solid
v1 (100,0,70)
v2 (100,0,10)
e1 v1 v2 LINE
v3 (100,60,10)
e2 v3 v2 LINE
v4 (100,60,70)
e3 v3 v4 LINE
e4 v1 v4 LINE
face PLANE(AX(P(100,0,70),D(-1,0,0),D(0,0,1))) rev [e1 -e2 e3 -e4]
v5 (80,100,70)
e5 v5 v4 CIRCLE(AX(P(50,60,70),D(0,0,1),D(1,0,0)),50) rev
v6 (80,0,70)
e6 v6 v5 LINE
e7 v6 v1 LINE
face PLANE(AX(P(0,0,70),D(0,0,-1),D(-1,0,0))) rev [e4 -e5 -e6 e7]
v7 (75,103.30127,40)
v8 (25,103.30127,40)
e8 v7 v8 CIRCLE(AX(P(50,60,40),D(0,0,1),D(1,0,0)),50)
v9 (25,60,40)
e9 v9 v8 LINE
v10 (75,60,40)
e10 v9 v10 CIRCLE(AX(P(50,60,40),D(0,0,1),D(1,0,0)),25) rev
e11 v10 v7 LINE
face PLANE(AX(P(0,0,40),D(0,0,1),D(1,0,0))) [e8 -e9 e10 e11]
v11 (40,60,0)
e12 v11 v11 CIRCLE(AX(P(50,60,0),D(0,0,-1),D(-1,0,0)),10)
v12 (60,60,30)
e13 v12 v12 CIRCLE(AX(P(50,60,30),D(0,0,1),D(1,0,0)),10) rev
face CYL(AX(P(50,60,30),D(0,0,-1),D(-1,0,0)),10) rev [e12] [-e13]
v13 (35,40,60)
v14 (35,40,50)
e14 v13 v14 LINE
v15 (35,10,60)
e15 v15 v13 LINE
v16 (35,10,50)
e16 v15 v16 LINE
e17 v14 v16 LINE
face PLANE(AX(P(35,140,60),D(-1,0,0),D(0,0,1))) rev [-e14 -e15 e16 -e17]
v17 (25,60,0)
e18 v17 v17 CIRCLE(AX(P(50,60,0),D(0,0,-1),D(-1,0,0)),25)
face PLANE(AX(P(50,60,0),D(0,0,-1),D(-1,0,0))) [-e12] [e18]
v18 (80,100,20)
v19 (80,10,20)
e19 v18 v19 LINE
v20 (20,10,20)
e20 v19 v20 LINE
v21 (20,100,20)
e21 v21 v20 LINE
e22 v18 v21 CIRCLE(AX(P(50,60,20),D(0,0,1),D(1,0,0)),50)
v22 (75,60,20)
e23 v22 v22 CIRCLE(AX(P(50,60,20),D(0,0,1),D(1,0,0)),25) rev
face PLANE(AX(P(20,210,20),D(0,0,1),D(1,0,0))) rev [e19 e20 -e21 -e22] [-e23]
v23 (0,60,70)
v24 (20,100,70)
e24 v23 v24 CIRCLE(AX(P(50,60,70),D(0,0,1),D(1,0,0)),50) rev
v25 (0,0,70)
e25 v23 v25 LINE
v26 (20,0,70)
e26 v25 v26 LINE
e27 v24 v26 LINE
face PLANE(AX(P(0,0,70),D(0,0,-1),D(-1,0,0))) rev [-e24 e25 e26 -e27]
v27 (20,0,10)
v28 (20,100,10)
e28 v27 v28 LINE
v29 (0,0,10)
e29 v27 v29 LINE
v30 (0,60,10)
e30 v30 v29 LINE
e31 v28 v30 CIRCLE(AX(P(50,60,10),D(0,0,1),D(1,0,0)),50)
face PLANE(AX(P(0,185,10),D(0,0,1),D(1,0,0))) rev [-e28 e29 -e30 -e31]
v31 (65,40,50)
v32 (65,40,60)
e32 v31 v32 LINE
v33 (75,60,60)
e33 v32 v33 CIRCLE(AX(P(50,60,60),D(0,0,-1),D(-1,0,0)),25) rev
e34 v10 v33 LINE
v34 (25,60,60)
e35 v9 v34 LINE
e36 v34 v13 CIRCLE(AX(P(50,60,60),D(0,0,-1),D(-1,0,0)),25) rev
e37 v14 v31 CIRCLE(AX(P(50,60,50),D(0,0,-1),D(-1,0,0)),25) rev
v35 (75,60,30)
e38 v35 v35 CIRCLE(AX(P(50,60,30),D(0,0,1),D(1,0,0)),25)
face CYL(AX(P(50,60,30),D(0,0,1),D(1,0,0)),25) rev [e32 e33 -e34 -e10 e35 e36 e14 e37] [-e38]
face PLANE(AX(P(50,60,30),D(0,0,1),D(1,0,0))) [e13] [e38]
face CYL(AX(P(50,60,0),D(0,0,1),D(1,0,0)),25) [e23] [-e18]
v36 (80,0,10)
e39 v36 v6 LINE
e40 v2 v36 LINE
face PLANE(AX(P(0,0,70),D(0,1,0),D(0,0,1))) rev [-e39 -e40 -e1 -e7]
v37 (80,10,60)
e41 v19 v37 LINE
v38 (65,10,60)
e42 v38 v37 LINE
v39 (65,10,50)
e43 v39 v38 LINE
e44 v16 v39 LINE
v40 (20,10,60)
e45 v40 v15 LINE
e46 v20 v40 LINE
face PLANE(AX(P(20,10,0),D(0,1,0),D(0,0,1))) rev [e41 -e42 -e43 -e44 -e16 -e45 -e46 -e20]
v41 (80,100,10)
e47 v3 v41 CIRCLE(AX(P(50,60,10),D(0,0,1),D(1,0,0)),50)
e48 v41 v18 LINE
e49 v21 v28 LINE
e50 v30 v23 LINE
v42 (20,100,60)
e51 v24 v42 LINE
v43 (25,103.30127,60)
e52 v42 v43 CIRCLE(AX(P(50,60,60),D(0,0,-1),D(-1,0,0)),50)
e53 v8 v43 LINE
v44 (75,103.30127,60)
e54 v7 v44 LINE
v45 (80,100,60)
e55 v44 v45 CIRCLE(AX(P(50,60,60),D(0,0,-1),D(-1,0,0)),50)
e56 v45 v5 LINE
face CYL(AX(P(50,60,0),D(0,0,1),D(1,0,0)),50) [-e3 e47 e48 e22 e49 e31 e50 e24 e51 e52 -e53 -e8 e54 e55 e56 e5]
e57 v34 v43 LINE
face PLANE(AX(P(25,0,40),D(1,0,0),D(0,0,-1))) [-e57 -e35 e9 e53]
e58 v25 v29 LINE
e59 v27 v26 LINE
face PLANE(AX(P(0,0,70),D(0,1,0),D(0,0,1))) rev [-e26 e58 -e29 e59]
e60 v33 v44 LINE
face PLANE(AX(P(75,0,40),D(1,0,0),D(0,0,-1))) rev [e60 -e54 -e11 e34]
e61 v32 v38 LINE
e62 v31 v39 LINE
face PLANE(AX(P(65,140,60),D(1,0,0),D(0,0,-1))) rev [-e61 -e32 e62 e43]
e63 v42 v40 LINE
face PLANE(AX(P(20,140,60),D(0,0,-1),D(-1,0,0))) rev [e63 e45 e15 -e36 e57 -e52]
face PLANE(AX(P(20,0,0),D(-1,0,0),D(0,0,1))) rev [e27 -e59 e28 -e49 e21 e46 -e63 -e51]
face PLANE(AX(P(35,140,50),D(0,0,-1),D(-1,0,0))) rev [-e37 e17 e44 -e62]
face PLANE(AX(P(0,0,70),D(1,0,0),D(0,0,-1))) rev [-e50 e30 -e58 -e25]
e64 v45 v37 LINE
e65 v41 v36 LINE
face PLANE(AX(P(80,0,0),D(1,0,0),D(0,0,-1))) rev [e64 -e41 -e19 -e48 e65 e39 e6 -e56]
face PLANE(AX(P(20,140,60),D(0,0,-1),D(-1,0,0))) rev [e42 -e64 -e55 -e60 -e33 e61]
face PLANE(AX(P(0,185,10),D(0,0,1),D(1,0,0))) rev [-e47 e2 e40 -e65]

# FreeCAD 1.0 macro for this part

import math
import FreeCAD as App
import Part
import Sketcher
from FreeCAD import Vector
Q = App.Units.Quantity

doc = App.newDocument("Part")
body = doc.addObject("PartDesign::Body", "Body")

sketch1 = body.newObject("Sketcher::SketchObject", "Sketch")
sketch1.AttachmentSupport = (doc.getObject("XY_Plane"), [""])
sketch1.MapMode = "FlatFace"
sketch1.addGeometry(Part.LineSegment(Vector(0, 110, 0), Vector(0, 0, 0)), False)
sketch1.addGeometry(Part.LineSegment(Vector(0, 0, 0), Vector(100, 0, 0)), False)
sketch1.addGeometry(Part.LineSegment(Vector(100, 0, 0), Vector(100, 110, 0)), False)
sketch1.addGeometry(Part.LineSegment(Vector(100, 110, 0), Vector(0, 110, 0)), False)
sketch1.addConstraint(Sketcher.Constraint("Coincident", 0, 2, 1, 1))
sketch1.addConstraint(Sketcher.Constraint("Coincident", 1, 2, 2, 1))
sketch1.addConstraint(Sketcher.Constraint("Coincident", 2, 2, 3, 1))
sketch1.addConstraint(Sketcher.Constraint("Coincident", 3, 2, 0, 1))
sketch1.addConstraint(Sketcher.Constraint("Vertical", 0))
sketch1.addConstraint(Sketcher.Constraint("Horizontal", 1))
sketch1.addConstraint(Sketcher.Constraint("Vertical", 2))
sketch1.addConstraint(Sketcher.Constraint("Horizontal", 3))
sketch1.addConstraint(Sketcher.Constraint("Coincident", 0, 2, -1, 1))
sketch1.addConstraint(Sketcher.Constraint("DistanceX", 1, 1, 1, 2, Q("100 mm")))
sketch1.addConstraint(Sketcher.Constraint("DistanceY", 0, 2, 0, 1, Q("110 mm")))
pad1 = body.newObject("PartDesign::Pad", "Pad")
pad1.Profile = sketch1
pad1.Length = 70

sketch2 = body.newObject("Sketcher::SketchObject", "Sketch001")
sketch2.AttachmentSupport = (doc.getObject("XY_Plane"), [""])
sketch2.MapMode = "FlatFace"
sketch2.AttachmentOffset = App.Placement(Vector(0, 0, 70), App.Rotation())
sketch2.addGeometry(Part.LineSegment(Vector(20, 10, 0), Vector(20, 0, 0)), False)
sketch2.addGeometry(Part.LineSegment(Vector(20, 0, 0), Vector(80, 0, 0)), False)
sketch2.addGeometry(Part.LineSegment(Vector(80, 0, 0), Vector(80, 10, 0)), False)
sketch2.addGeometry(Part.LineSegment(Vector(80, 10, 0), Vector(20, 10, 0)), False)
sketch2.addConstraint(Sketcher.Constraint("Coincident", 0, 2, 1, 1))
sketch2.addConstraint(Sketcher.Constraint("Coincident", 1, 2, 2, 1))
sketch2.addConstraint(Sketcher.Constraint("Coincident", 2, 2, 3, 1))
sketch2.addConstraint(Sketcher.Constraint("Coincident", 3, 2, 0, 1))
sketch2.addConstraint(Sketcher.Constraint("Vertical", 0))
sketch2.addConstraint(Sketcher.Constraint("Horizontal", 1))
sketch2.addConstraint(Sketcher.Constraint("Vertical", 2))
sketch2.addConstraint(Sketcher.Constraint("Horizontal", 3))
sketch2.addConstraint(Sketcher.Constraint("PointOnObject", 0, 2, -1))
sketch2.addConstraint(Sketcher.Constraint("DistanceX", 1, 1, 1, 2, Q("60 mm")))
sketch2.addConstraint(Sketcher.Constraint("DistanceY", 0, 2, 0, 1, Q("10 mm")))
sketch2.addConstraint(Sketcher.Constraint("DistanceX", -1, 1, 0, 2, Q("20 mm")))
pocket1 = body.newObject("PartDesign::Pocket", "Pocket")
pocket1.Profile = sketch2
pocket1.Length = 70

sketch3 = body.newObject("Sketcher::SketchObject", "Sketch002")
sketch3.AttachmentSupport = (doc.getObject("XY_Plane"), [""])
sketch3.MapMode = "FlatFace"
sketch3.AttachmentOffset = App.Placement(Vector(0, 0, 70), App.Rotation())
sketch3.addGeometry(Part.LineSegment(Vector(0, 110, 0), Vector(0, 60, 0)), False)
sketch3.addGeometry(Part.ArcOfCircle(Part.Circle(Vector(50, 60, 0), Vector(0, 0, 1), 50), math.radians(90), math.radians(180)), False)
sketch3.addGeometry(Part.LineSegment(Vector(50, 110, 0), Vector(0, 110, 0)), False)
sketch3.addGeometry(Part.LineSegment(Vector(100, 110, 0), Vector(50, 110, 0)), False)
sketch3.addGeometry(Part.ArcOfCircle(Part.Circle(Vector(50, 60, 0), Vector(0, 0, 1), 50), math.radians(0), math.radians(90)), False)
sketch3.addGeometry(Part.LineSegment(Vector(100, 60, 0), Vector(100, 110, 0)), False)
sketch3.addConstraint(Sketcher.Constraint("Tangent", 0, 2, 1, 2))
sketch3.addConstraint(Sketcher.Constraint("Tangent", 1, 1, 2, 1))
sketch3.addConstraint(Sketcher.Constraint("Coincident", 2, 2, 0, 1))
sketch3.addConstraint(Sketcher.Constraint("Tangent", 3, 2, 4, 2))
sketch3.addConstraint(Sketcher.Constraint("Tangent", 4, 1, 5, 1))
sketch3.addConstraint(Sketcher.Constraint("Coincident", 5, 2, 3, 1))
sketch3.addConstraint(Sketcher.Constraint("Vertical", 0))
sketch3.addConstraint(Sketcher.Constraint("Horizontal", 2))
sketch3.addConstraint(Sketcher.Constraint("Horizontal", 3))
sketch3.addConstraint(Sketcher.Constraint("Vertical", 5))
sketch3.addConstraint(Sketcher.Constraint("Coincident", 4, 3, 1, 3))
sketch3.addConstraint(Sketcher.Constraint("Equal", 1, 4))
sketch3.addConstraint(Sketcher.Constraint("PointOnObject", 0, 2, -2))
sketch3.addConstraint(Sketcher.Constraint("Radius", 1, Q("50 mm")))
sketch3.addConstraint(Sketcher.Constraint("DistanceY", -1, 1, 1, 3, Q("60 mm")))
pocket2 = body.newObject("PartDesign::Pocket", "Pocket001")
pocket2.Profile = sketch3
pocket2.Length = 70

sketch4 = body.newObject("Sketcher::SketchObject", "Sketch003")
sketch4.AttachmentSupport = (doc.getObject("XY_Plane"), [""])
sketch4.MapMode = "FlatFace"
sketch4.addGeometry(Part.Circle(Vector(50, 60, 0), Vector(0, 0, 1), 10), False)
sketch4.addConstraint(Sketcher.Constraint("Diameter", 0, Q("20 mm")))
sketch4.addConstraint(Sketcher.Constraint("DistanceX", -1, 1, 0, 3, Q("50 mm")))
sketch4.addConstraint(Sketcher.Constraint("DistanceY", -1, 1, 0, 3, Q("60 mm")))
pocket3 = body.newObject("PartDesign::Pocket", "Pocket002")
pocket3.Profile = sketch4
pocket3.Length = 30
pocket3.Reversed = True

sketch5 = body.newObject("Sketcher::SketchObject", "Sketch004")
sketch5.AttachmentSupport = (doc.getObject("XZ_Plane"), [""])
sketch5.MapMode = "FlatFace"
sketch5.addGeometry(Part.LineSegment(Vector(0, 10, 0), Vector(0, 0, 0)), False)
sketch5.addGeometry(Part.LineSegment(Vector(0, 0, 0), Vector(100, 0, 0)), False)
sketch5.addGeometry(Part.LineSegment(Vector(100, 0, 0), Vector(100, 10, 0)), False)
sketch5.addGeometry(Part.LineSegment(Vector(100, 10, 0), Vector(0, 10, 0)), False)
sketch5.addConstraint(Sketcher.Constraint("Coincident", 0, 2, 1, 1))
sketch5.addConstraint(Sketcher.Constraint("Coincident", 1, 2, 2, 1))
sketch5.addConstraint(Sketcher.Constraint("Coincident", 2, 2, 3, 1))
sketch5.addConstraint(Sketcher.Constraint("Coincident", 3, 2, 0, 1))
sketch5.addConstraint(Sketcher.Constraint("Vertical", 0))
sketch5.addConstraint(Sketcher.Constraint("Horizontal", 1))
sketch5.addConstraint(Sketcher.Constraint("Vertical", 2))
sketch5.addConstraint(Sketcher.Constraint("Horizontal", 3))
sketch5.addConstraint(Sketcher.Constraint("Coincident", 0, 2, -1, 1))
sketch5.addConstraint(Sketcher.Constraint("DistanceX", 1, 1, 1, 2, Q("100 mm")))
sketch5.addConstraint(Sketcher.Constraint("DistanceY", 0, 2, 0, 1, Q("10 mm")))
pocket4 = body.newObject("PartDesign::Pocket", "Pocket003")
pocket4.Profile = sketch5
pocket4.Length = 185

sketch6 = body.newObject("Sketcher::SketchObject", "Sketch005")
sketch6.AttachmentSupport = (doc.getObject("XZ_Plane"), [""])
sketch6.MapMode = "FlatFace"
sketch6.AttachmentOffset = App.Placement(Vector(0, 0, -10), App.Rotation())
sketch6.addGeometry(Part.LineSegment(Vector(80, 10, 0), Vector(80, 20, 0)), False)
sketch6.addGeometry(Part.LineSegment(Vector(80, 20, 0), Vector(20, 20, 0)), False)
sketch6.addGeometry(Part.LineSegment(Vector(20, 20, 0), Vector(20, 10, 0)), False)
sketch6.addGeometry(Part.LineSegment(Vector(20, 10, 0), Vector(80, 10, 0)), False)
sketch6.addConstraint(Sketcher.Constraint("Coincident", 0, 2, 1, 1))
sketch6.addConstraint(Sketcher.Constraint("Coincident", 1, 2, 2, 1))
sketch6.addConstraint(Sketcher.Constraint("Coincident", 2, 2, 3, 1))
sketch6.addConstraint(Sketcher.Constraint("Coincident", 3, 2, 0, 1))
sketch6.addConstraint(Sketcher.Constraint("Vertical", 0))
sketch6.addConstraint(Sketcher.Constraint("Horizontal", 1))
sketch6.addConstraint(Sketcher.Constraint("Vertical", 2))
sketch6.addConstraint(Sketcher.Constraint("Horizontal", 3))
sketch6.addConstraint(Sketcher.Constraint("DistanceX", 1, 2, 1, 1, Q("60 mm")))
sketch6.addConstraint(Sketcher.Constraint("DistanceY", 0, 1, 0, 2, Q("10 mm")))
sketch6.addConstraint(Sketcher.Constraint("DistanceX", -1, 1, 0, 2, Q("80 mm")))
sketch6.addConstraint(Sketcher.Constraint("DistanceY", -1, 1, 0, 2, Q("20 mm")))
pocket5 = body.newObject("PartDesign::Pocket", "Pocket004")
pocket5.Profile = sketch6
pocket5.Length = 200

sketch7 = body.newObject("Sketcher::SketchObject", "Sketch006")
sketch7.AttachmentSupport = (doc.getObject("XY_Plane"), [""])
sketch7.MapMode = "FlatFace"
sketch7.AttachmentOffset = App.Placement(Vector(0, 0, 20), App.Rotation())
sketch7.addGeometry(Part.Circle(Vector(50, 60, 0), Vector(0, 0, 1), 25), False)
sketch7.addGeometry(Part.Circle(Vector(50, 60, 0), Vector(0, 0, 1), 10), False)
sketch7.addConstraint(Sketcher.Constraint("Coincident", 1, 3, 0, 3))
sketch7.addConstraint(Sketcher.Constraint("Diameter", 0, Q("50 mm")))
sketch7.addConstraint(Sketcher.Constraint("Diameter", 1, Q("20 mm")))
sketch7.addConstraint(Sketcher.Constraint("DistanceX", -1, 1, 0, 3, Q("50 mm")))
sketch7.addConstraint(Sketcher.Constraint("DistanceY", -1, 1, 0, 3, Q("60 mm")))
pad2 = body.newObject("PartDesign::Pad", "Pad001")
pad2.Profile = sketch7
pad2.Length = 20
pad2.Reversed = True

sketch8 = body.newObject("Sketcher::SketchObject", "Sketch007")
sketch8.AttachmentSupport = (doc.getObject("XY_Plane"), [""])
sketch8.MapMode = "FlatFace"
sketch8.AttachmentOffset = App.Placement(Vector(0, 0, 70), App.Rotation())
sketch8.addGeometry(Part.Circle(Vector(50, 60, 0), Vector(0, 0, 1), 25), False)
sketch8.addConstraint(Sketcher.Constraint("Diameter", 0, Q("50 mm")))
sketch8.addConstraint(Sketcher.Constraint("DistanceX", -1, 1, 0, 3, Q("50 mm")))
sketch8.addConstraint(Sketcher.Constraint("DistanceY", -1, 1, 0, 3, Q("60 mm")))
pocket6 = body.newObject("PartDesign::Pocket", "Pocket005")
pocket6.Profile = sketch8
pocket6.Length = 40

sketch9 = body.newObject("Sketcher::SketchObject", "Sketch008")
sketch9.AttachmentSupport = (doc.getObject("XY_Plane"), [""])
sketch9.MapMode = "FlatFace"
sketch9.AttachmentOffset = App.Placement(Vector(0, 0, 70), App.Rotation())
sketch9.addGeometry(Part.LineSegment(Vector(25, 103, 0), Vector(25, 60, 0)), False)
sketch9.addGeometry(Part.ArcOfCircle(Part.Circle(Vector(50, 60, 0), Vector(0, 0, 1), 25), math.radians(0), math.radians(180)), False)
sketch9.addGeometry(Part.LineSegment(Vector(75, 60, 0), Vector(75, 103, 0)), False)
sketch9.addGeometry(Part.ArcOfCircle(Part.Circle(Vector(50, 60, 0), Vector(0, 0, 1), 50), math.radians(60), math.radians(120)), False)
sketch9.addConstraint(Sketcher.Constraint("Tangent", 0, 2, 1, 2))
sketch9.addConstraint(Sketcher.Constraint("Tangent", 1, 1, 2, 1))
sketch9.addConstraint(Sketcher.Constraint("Coincident", 2, 2, 3, 1))
sketch9.addConstraint(Sketcher.Constraint("Coincident", 3, 2, 0, 1))
sketch9.addConstraint(Sketcher.Constraint("Vertical", 0))
sketch9.addConstraint(Sketcher.Constraint("Vertical", 2))
sketch9.addConstraint(Sketcher.Constraint("Coincident", 3, 3, 1, 3))
sketch9.addConstraint(Sketcher.Constraint("Radius", 1, Q("25 mm")))
sketch9.addConstraint(Sketcher.Constraint("Radius", 3, Q("50 mm")))
sketch9.addConstraint(Sketcher.Constraint("DistanceX", -1, 1, 1, 3, Q("50 mm")))
sketch9.addConstraint(Sketcher.Constraint("DistanceY", -1, 1, 1, 3, Q("60 mm")))
pocket7 = body.newObject("PartDesign::Pocket", "Pocket006")
pocket7.Profile = sketch9
pocket7.Length = 30

sketch10 = body.newObject("Sketcher::SketchObject", "Sketch009")
sketch10.AttachmentSupport = (doc.getObject("XZ_Plane"), [""])
sketch10.MapMode = "FlatFace"
sketch10.AttachmentOffset = App.Placement(Vector(0, 0, -10), App.Rotation())
sketch10.addGeometry(Part.LineSegment(Vector(80, 60, 0), Vector(80, 70, 0)), False)
sketch10.addGeometry(Part.LineSegment(Vector(80, 70, 0), Vector(20, 70, 0)), False)
sketch10.addGeometry(Part.LineSegment(Vector(20, 70, 0), Vector(20, 60, 0)), False)
sketch10.addGeometry(Part.LineSegment(Vector(20, 60, 0), Vector(80, 60, 0)), False)
sketch10.addConstraint(Sketcher.Constraint("Coincident", 0, 2, 1, 1))
sketch10.addConstraint(Sketcher.Constraint("Coincident", 1, 2, 2, 1))
sketch10.addConstraint(Sketcher.Constraint("Coincident", 2, 2, 3, 1))
sketch10.addConstraint(Sketcher.Constraint("Coincident", 3, 2, 0, 1))
sketch10.addConstraint(Sketcher.Constraint("Vertical", 0))
sketch10.addConstraint(Sketcher.Constraint("Horizontal", 1))
sketch10.addConstraint(Sketcher.Constraint("Vertical", 2))
sketch10.addConstraint(Sketcher.Constraint("Horizontal", 3))
sketch10.addConstraint(Sketcher.Constraint("DistanceX", 1, 2, 1, 1, Q("60 mm")))
sketch10.addConstraint(Sketcher.Constraint("DistanceY", 0, 1, 0, 2, Q("10 mm")))
sketch10.addConstraint(Sketcher.Constraint("DistanceX", -1, 1, 0, 2, Q("80 mm")))
sketch10.addConstraint(Sketcher.Constraint("DistanceY", -1, 1, 0, 2, Q("70 mm")))
pocket8 = body.newObject("PartDesign::Pocket", "Pocket007")
pocket8.Profile = sketch10
pocket8.Length = 130

sketch11 = body.newObject("Sketcher::SketchObject", "Sketch010")
sketch11.AttachmentSupport = (doc.getObject("XZ_Plane"), [""])
sketch11.MapMode = "FlatFace"
sketch11.AttachmentOffset = App.Placement(Vector(0, 0, -10), App.Rotation())
sketch11.addGeometry(Part.LineSegment(Vector(35, 60, 0), Vector(35, 50, 0)), False)
sketch11.addGeometry(Part.LineSegment(Vector(35, 50, 0), Vector(65, 50, 0)), False)
sketch11.addGeometry(Part.LineSegment(Vector(65, 50, 0), Vector(65, 60, 0)), False)
sketch11.addGeometry(Part.LineSegment(Vector(65, 60, 0), Vector(35, 60, 0)), False)
sketch11.addConstraint(Sketcher.Constraint("Coincident", 0, 2, 1, 1))
sketch11.addConstraint(Sketcher.Constraint("Coincident", 1, 2, 2, 1))
sketch11.addConstraint(Sketcher.Constraint("Coincident", 2, 2, 3, 1))
sketch11.addConstraint(Sketcher.Constraint("Coincident", 3, 2, 0, 1))
sketch11.addConstraint(Sketcher.Constraint("Vertical", 0))
sketch11.addConstraint(Sketcher.Constraint("Horizontal", 1))
sketch11.addConstraint(Sketcher.Constraint("Vertical", 2))
sketch11.addConstraint(Sketcher.Constraint("Horizontal", 3))
sketch11.addConstraint(Sketcher.Constraint("DistanceX", 1, 1, 1, 2, Q("30 mm")))
sketch11.addConstraint(Sketcher.Constraint("DistanceY", 0, 2, 0, 1, Q("10 mm")))
sketch11.addConstraint(Sketcher.Constraint("DistanceX", -1, 1, 0, 2, Q("35 mm")))
sketch11.addConstraint(Sketcher.Constraint("DistanceY", -1, 1, 0, 2, Q("50 mm")))
pocket9 = body.newObject("PartDesign::Pocket", "Pocket008")
pocket9.Profile = sketch11
pocket9.Length = 130

doc.recompute()
